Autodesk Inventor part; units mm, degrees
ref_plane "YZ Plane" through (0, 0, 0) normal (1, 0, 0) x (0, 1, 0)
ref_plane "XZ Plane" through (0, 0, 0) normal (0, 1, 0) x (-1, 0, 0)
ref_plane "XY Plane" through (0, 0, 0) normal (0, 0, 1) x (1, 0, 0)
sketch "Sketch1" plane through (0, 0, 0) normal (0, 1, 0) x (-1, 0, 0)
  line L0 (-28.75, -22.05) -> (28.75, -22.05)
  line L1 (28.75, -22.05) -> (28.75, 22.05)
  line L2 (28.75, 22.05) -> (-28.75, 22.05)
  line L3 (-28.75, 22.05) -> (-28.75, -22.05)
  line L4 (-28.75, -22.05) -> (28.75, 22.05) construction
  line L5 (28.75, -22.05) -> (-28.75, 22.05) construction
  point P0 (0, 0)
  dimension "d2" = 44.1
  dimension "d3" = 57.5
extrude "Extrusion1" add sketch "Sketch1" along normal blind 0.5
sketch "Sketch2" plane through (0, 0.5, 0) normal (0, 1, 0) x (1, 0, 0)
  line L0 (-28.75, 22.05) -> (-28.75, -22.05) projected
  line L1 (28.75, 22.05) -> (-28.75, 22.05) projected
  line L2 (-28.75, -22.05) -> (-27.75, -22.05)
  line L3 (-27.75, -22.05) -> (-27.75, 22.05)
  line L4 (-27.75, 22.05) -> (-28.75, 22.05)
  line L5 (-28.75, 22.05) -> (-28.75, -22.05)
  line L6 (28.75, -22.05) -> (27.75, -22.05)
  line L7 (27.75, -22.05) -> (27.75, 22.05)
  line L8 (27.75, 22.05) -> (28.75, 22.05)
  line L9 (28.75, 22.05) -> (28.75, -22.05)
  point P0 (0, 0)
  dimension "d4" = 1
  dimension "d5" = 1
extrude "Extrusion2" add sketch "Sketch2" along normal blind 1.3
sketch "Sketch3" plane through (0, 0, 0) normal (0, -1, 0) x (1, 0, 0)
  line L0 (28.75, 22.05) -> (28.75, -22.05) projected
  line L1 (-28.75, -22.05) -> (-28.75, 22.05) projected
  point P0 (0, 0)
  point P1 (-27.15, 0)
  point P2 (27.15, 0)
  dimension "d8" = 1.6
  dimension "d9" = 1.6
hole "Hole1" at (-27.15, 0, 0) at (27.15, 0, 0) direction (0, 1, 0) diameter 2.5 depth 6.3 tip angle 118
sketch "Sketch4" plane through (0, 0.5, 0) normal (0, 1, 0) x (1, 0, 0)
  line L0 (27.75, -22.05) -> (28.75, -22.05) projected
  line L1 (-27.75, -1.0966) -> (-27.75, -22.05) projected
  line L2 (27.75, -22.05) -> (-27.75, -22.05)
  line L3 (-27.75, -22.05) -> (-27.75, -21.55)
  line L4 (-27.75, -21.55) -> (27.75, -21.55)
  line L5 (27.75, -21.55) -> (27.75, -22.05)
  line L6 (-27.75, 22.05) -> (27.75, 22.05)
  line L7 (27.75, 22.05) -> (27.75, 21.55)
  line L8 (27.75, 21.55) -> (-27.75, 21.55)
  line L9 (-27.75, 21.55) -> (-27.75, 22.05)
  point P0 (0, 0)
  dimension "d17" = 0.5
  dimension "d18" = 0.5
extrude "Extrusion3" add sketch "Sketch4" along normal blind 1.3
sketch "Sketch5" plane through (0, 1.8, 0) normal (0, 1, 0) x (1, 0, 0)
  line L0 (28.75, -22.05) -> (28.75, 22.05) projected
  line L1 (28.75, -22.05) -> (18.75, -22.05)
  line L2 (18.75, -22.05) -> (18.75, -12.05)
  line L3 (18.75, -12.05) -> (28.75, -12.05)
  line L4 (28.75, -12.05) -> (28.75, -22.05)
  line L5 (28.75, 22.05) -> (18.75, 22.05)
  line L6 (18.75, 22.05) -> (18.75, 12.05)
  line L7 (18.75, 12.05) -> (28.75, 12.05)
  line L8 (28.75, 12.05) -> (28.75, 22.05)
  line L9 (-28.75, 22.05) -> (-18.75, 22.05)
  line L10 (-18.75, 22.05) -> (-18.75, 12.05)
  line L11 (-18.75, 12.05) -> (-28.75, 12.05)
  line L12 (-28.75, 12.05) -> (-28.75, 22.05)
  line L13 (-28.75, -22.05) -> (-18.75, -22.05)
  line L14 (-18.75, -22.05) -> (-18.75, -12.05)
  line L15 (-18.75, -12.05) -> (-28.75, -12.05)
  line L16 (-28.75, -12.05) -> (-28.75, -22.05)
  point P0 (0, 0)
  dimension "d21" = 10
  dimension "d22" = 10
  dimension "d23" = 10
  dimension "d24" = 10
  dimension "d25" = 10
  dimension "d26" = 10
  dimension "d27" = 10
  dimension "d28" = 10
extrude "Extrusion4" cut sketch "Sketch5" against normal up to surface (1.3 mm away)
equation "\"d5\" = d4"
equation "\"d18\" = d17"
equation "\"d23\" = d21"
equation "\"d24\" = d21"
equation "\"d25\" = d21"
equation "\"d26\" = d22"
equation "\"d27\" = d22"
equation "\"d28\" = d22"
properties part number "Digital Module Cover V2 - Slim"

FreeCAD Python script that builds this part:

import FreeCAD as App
import Part
import Sketcher

V = App.Vector
Q = App.Units.Quantity

doc = App.newDocument("Part")
body = doc.addObject("PartDesign::Body", "Body")

sketch1 = body.newObject("Sketcher::SketchObject", "Sketch")
sketch1.AttachmentSupport = (doc.getObject("XZ_Plane"), [""])
sketch1.MapMode = "FlatFace"
sketch1.addGeometry(Part.LineSegment(V(28.75, 22.05, 0), V(28.75, -22.05, 0)), False)
sketch1.addGeometry(Part.LineSegment(V(28.75, -22.05, 0), V(-28.75, -22.05, 0)), False)
sketch1.addGeometry(Part.LineSegment(V(-28.75, -22.05, 0), V(-28.75, 22.05, 0)), False)
sketch1.addGeometry(Part.LineSegment(V(-28.75, 22.05, 0), V(28.75, 22.05, 0)), False)
sketch1.addConstraint(Sketcher.Constraint("Coincident", 0, 2, 1, 1))
sketch1.addConstraint(Sketcher.Constraint("Coincident", 1, 2, 2, 1))
sketch1.addConstraint(Sketcher.Constraint("Coincident", 2, 2, 3, 1))
sketch1.addConstraint(Sketcher.Constraint("Coincident", 3, 2, 0, 1))
sketch1.addConstraint(Sketcher.Constraint("Vertical", 0))
sketch1.addConstraint(Sketcher.Constraint("Horizontal", 1))
sketch1.addConstraint(Sketcher.Constraint("Vertical", 2))
sketch1.addConstraint(Sketcher.Constraint("Horizontal", 3))
sketch1.addConstraint(Sketcher.Constraint("Symmetric", 0, 2, 2, 2, -1, 1))
sketch1.addConstraint(Sketcher.Constraint("DistanceX", 1, 2, 1, 1, Q("57.5 mm")))
sketch1.addConstraint(Sketcher.Constraint("DistanceY", 0, 2, 0, 1, Q("44.1 mm")))
pad1 = body.newObject("PartDesign::Pad", "Pad")
pad1.Profile = sketch1
pad1.Length = 0.5
pad1.Reversed = True

sketch2 = body.newObject("Sketcher::SketchObject", "Sketch001")
sketch2.AttachmentSupport = (doc.getObject("XZ_Plane"), [""])
sketch2.MapMode = "FlatFace"
sketch2.AttachmentOffset = App.Placement(V(0, 0, -0.5), App.Rotation())
sketch2.addGeometry(Part.LineSegment(V(-27.75, -22.05, 0), V(-28.75, -22.05, 0)), False)
sketch2.addGeometry(Part.LineSegment(V(-28.75, -22.05, 0), V(-28.75, 22.05, 0)), False)
sketch2.addGeometry(Part.LineSegment(V(-28.75, 22.05, 0), V(-27.75, 22.05, 0)), False)
sketch2.addGeometry(Part.LineSegment(V(-27.75, 22.05, 0), V(-27.75, -22.05, 0)), False)
sketch2.addGeometry(Part.LineSegment(V(28.75, -22.05, 0), V(27.75, -22.05, 0)), False)
sketch2.addGeometry(Part.LineSegment(V(27.75, -22.05, 0), V(27.75, 22.05, 0)), False)
sketch2.addGeometry(Part.LineSegment(V(27.75, 22.05, 0), V(28.75, 22.05, 0)), False)
sketch2.addGeometry(Part.LineSegment(V(28.75, 22.05, 0), V(28.75, -22.05, 0)), False)
sketch2.addConstraint(Sketcher.Constraint("Coincident", 0, 2, 1, 1))
sketch2.addConstraint(Sketcher.Constraint("Coincident", 1, 2, 2, 1))
sketch2.addConstraint(Sketcher.Constraint("Coincident", 2, 2, 3, 1))
sketch2.addConstraint(Sketcher.Constraint("Coincident", 3, 2, 0, 1))
sketch2.addConstraint(Sketcher.Constraint("Coincident", 4, 2, 5, 1))
sketch2.addConstraint(Sketcher.Constraint("Coincident", 5, 2, 6, 1))
sketch2.addConstraint(Sketcher.Constraint("Coincident", 6, 2, 7, 1))
sketch2.addConstraint(Sketcher.Constraint("Coincident", 7, 2, 4, 1))
sketch2.addConstraint(Sketcher.Constraint("Horizontal", 0))
sketch2.addConstraint(Sketcher.Constraint("Vertical", 1))
sketch2.addConstraint(Sketcher.Constraint("Horizontal", 2))
sketch2.addConstraint(Sketcher.Constraint("Vertical", 3))
sketch2.addConstraint(Sketcher.Constraint("Horizontal", 4))
sketch2.addConstraint(Sketcher.Constraint("Vertical", 5))
sketch2.addConstraint(Sketcher.Constraint("Horizontal", 6))
sketch2.addConstraint(Sketcher.Constraint("Vertical", 7))
sketch2.addConstraint(Sketcher.Constraint("Symmetric", 2, 2, 4, 2, -1, 1))
sketch2.addConstraint(Sketcher.Constraint("Symmetric", 0, 2, 6, 2, -1, 1))
sketch2.addConstraint(Sketcher.Constraint("Horizontal", 3, 2, 4, 2))
sketch2.addConstraint(Sketcher.Constraint("DistanceX", 0, 2, 0, 1, Q("1 mm")))
sketch2.addConstraint(Sketcher.Constraint("DistanceY", 1, 1, 1, 2, Q("44.1 mm")))
sketch2.addConstraint(Sketcher.Constraint("DistanceX", 3, 2, 4, 2, Q("55.5 mm")))
pad2 = body.newObject("PartDesign::Pad", "Pad001")
pad2.Profile = sketch2
pad2.Length = 1.3
pad2.Reversed = True

sketch3 = body.newObject("Sketcher::SketchObject", "Sketch002")
sketch3.AttachmentSupport = (doc.getObject("XZ_Plane"), [""])
sketch3.MapMode = "FlatFace"
sketch3.addGeometry(Part.Circle(V(-27.15, 0, 0), V(0, 0, 1), 1.25), False)
sketch3.addGeometry(Part.Circle(V(27.15, 0, 0), V(0, 0, 1), 1.25), False)
sketch3.addConstraint(Sketcher.Constraint("Equal", 0, 1))
sketch3.addConstraint(Sketcher.Constraint("Symmetric", 0, 3, 1, 3, -1, 1))
sketch3.addConstraint(Sketcher.Constraint("PointOnObject", 0, 3, -1))
sketch3.addConstraint(Sketcher.Constraint("Diameter", 0, Q("2.5 mm")))
sketch3.addConstraint(Sketcher.Constraint("DistanceX", 0, 3, 1, 3, Q("54.3 mm")))
doc.recompute()
hole = body.newObject("PartDesign::Hole", "Hole")
hole.Profile = sketch3
hole.ThreadType = "None"
hole.Diameter = 2.5
hole.DepthType = "Dimension"
hole.Depth = 6.3
hole.DrillPoint = "Angled"
hole.DrillPointAngle = 118

sketch4 = body.newObject("Sketcher::SketchObject", "Sketch003")
sketch4.AttachmentSupport = (doc.getObject("XZ_Plane"), [""])
sketch4.MapMode = "FlatFace"
sketch4.AttachmentOffset = App.Placement(V(0, 0, -0.5), App.Rotation())
sketch4.addGeometry(Part.LineSegment(V(27.75, 21.55, 0), V(-27.75, 21.55, 0)), False)
sketch4.addGeometry(Part.LineSegment(V(-27.75, 21.55, 0), V(-27.75, 22.05, 0)), False)
sketch4.addGeometry(Part.LineSegment(V(-27.75, 22.05, 0), V(27.75, 22.05, 0)), False)
sketch4.addGeometry(Part.LineSegment(V(27.75, 22.05, 0), V(27.75, 21.55, 0)), False)
sketch4.addGeometry(Part.LineSegment(V(27.75, -22.05, 0), V(-27.75, -22.05, 0)), False)
sketch4.addGeometry(Part.LineSegment(V(-27.75, -22.05, 0), V(-27.75, -21.55, 0)), False)
sketch4.addGeometry(Part.LineSegment(V(-27.75, -21.55, 0), V(27.75, -21.55, 0)), False)
sketch4.addGeometry(Part.LineSegment(V(27.75, -21.55, 0), V(27.75, -22.05, 0)), False)
sketch4.addConstraint(Sketcher.Constraint("Coincident", 0, 2, 1, 1))
sketch4.addConstraint(Sketcher.Constraint("Coincident", 1, 2, 2, 1))
sketch4.addConstraint(Sketcher.Constraint("Coincident", 2, 2, 3, 1))
sketch4.addConstraint(Sketcher.Constraint("Coincident", 3, 2, 0, 1))
sketch4.addConstraint(Sketcher.Constraint("Coincident", 4, 2, 5, 1))
sketch4.addConstraint(Sketcher.Constraint("Coincident", 5, 2, 6, 1))
sketch4.addConstraint(Sketcher.Constraint("Coincident", 6, 2, 7, 1))
sketch4.addConstraint(Sketcher.Constraint("Coincident", 7, 2, 4, 1))
sketch4.addConstraint(Sketcher.Constraint("Horizontal", 0))
sketch4.addConstraint(Sketcher.Constraint("Vertical", 1))
sketch4.addConstraint(Sketcher.Constraint("Horizontal", 2))
sketch4.addConstraint(Sketcher.Constraint("Vertical", 3))
sketch4.addConstraint(Sketcher.Constraint("Horizontal", 4))
sketch4.addConstraint(Sketcher.Constraint("Vertical", 5))
sketch4.addConstraint(Sketcher.Constraint("Horizontal", 6))
sketch4.addConstraint(Sketcher.Constraint("Vertical", 7))
sketch4.addConstraint(Sketcher.Constraint("Symmetric", 2, 2, 4, 2, -1, 1))
sketch4.addConstraint(Sketcher.Constraint("Symmetric", 0, 2, 6, 2, -1, 1))
sketch4.addConstraint(Sketcher.Constraint("Vertical", 1, 2, 4, 2))
sketch4.addConstraint(Sketcher.Constraint("DistanceY", 1, 1, 1, 2, Q("0.5 mm")))
sketch4.addConstraint(Sketcher.Constraint("DistanceX", 0, 2, 0, 1, Q("55.5 mm")))
sketch4.addConstraint(Sketcher.Constraint("DistanceY", 4, 2, 0, 2, Q("43.6 mm")))
pad3 = body.newObject("PartDesign::Pad", "Pad002")
pad3.Profile = sketch4
pad3.Length = 1.3
pad3.Reversed = True

sketch5 = body.newObject("Sketcher::SketchObject", "Sketch004")
sketch5.AttachmentSupport = (doc.getObject("XZ_Plane"), [""])
sketch5.MapMode = "FlatFace"
sketch5.AttachmentOffset = App.Placement(V(0, 0, -1.8), App.Rotation())
sketch5.addGeometry(Part.LineSegment(V(18.75, 22.05, 0), V(28.75, 22.05, 0)), False)
sketch5.addGeometry(Part.LineSegment(V(28.75, 22.05, 0), V(28.75, 12.05, 0)), False)
sketch5.addGeometry(Part.LineSegment(V(28.75, 12.05, 0), V(18.75, 12.05, 0)), False)
sketch5.addGeometry(Part.LineSegment(V(18.75, 12.05, 0), V(18.75, 22.05, 0)), False)
sketch5.addGeometry(Part.LineSegment(V(18.75, -12.05, 0), V(28.75, -12.05, 0)), False)
sketch5.addGeometry(Part.LineSegment(V(28.75, -12.05, 0), V(28.75, -22.05, 0)), False)
sketch5.addGeometry(Part.LineSegment(V(28.75, -22.05, 0), V(18.75, -22.05, 0)), False)
sketch5.addGeometry(Part.LineSegment(V(18.75, -22.05, 0), V(18.75, -12.05, 0)), False)
sketch5.addGeometry(Part.LineSegment(V(-18.75, -22.05, 0), V(-28.75, -22.05, 0)), False)
sketch5.addGeometry(Part.LineSegment(V(-28.75, -22.05, 0), V(-28.75, -12.05, 0)), False)
sketch5.addGeometry(Part.LineSegment(V(-28.75, -12.05, 0), V(-18.75, -12.05, 0)), False)
sketch5.addGeometry(Part.LineSegment(V(-18.75, -12.05, 0), V(-18.75, -22.05, 0)), False)
sketch5.addGeometry(Part.LineSegment(V(-28.75, 12.05, 0), V(-28.75, 22.05, 0)), False)
sketch5.addGeometry(Part.LineSegment(V(-28.75, 22.05, 0), V(-18.75, 22.05, 0)), False)
sketch5.addGeometry(Part.LineSegment(V(-18.75, 22.05, 0), V(-18.75, 12.05, 0)), False)
sketch5.addGeometry(Part.LineSegment(V(-18.75, 12.05, 0), V(-28.75, 12.05, 0)), False)
sketch5.addConstraint(Sketcher.Constraint("Coincident", 0, 2, 1, 1))
sketch5.addConstraint(Sketcher.Constraint("Coincident", 1, 2, 2, 1))
sketch5.addConstraint(Sketcher.Constraint("Coincident", 2, 2, 3, 1))
sketch5.addConstraint(Sketcher.Constraint("Coincident", 3, 2, 0, 1))
sketch5.addConstraint(Sketcher.Constraint("Coincident", 4, 2, 5, 1))
sketch5.addConstraint(Sketcher.Constraint("Coincident", 5, 2, 6, 1))
sketch5.addConstraint(Sketcher.Constraint("Coincident", 6, 2, 7, 1))
sketch5.addConstraint(Sketcher.Constraint("Coincident", 7, 2, 4, 1))
sketch5.addConstraint(Sketcher.Constraint("Coincident", 8, 2, 9, 1))
sketch5.addConstraint(Sketcher.Constraint("Coincident", 9, 2, 10, 1))
sketch5.addConstraint(Sketcher.Constraint("Coincident", 10, 2, 11, 1))
sketch5.addConstraint(Sketcher.Constraint("Coincident", 11, 2, 8, 1))
sketch5.addConstraint(Sketcher.Constraint("Coincident", 12, 2, 13, 1))
sketch5.addConstraint(Sketcher.Constraint("Coincident", 13, 2, 14, 1))
sketch5.addConstraint(Sketcher.Constraint("Coincident", 14, 2, 15, 1))
sketch5.addConstraint(Sketcher.Constraint("Coincident", 15, 2, 12, 1))
sketch5.addConstraint(Sketcher.Constraint("Horizontal", 0))
sketch5.addConstraint(Sketcher.Constraint("Vertical", 1))
sketch5.addConstraint(Sketcher.Constraint("Horizontal", 2))
sketch5.addConstraint(Sketcher.Constraint("Vertical", 3))
sketch5.addConstraint(Sketcher.Constraint("Horizontal", 4))
sketch5.addConstraint(Sketcher.Constraint("Vertical", 5))
sketch5.addConstraint(Sketcher.Constraint("Horizontal", 6))
sketch5.addConstraint(Sketcher.Constraint("Vertical", 7))
sketch5.addConstraint(Sketcher.Constraint("Horizontal", 8))
sketch5.addConstraint(Sketcher.Constraint("Vertical", 9))
sketch5.addConstraint(Sketcher.Constraint("Horizontal", 10))
sketch5.addConstraint(Sketcher.Constraint("Vertical", 11))
sketch5.addConstraint(Sketcher.Constraint("Vertical", 12))
sketch5.addConstraint(Sketcher.Constraint("Horizontal", 13))
sketch5.addConstraint(Sketcher.Constraint("Vertical", 14))
sketch5.addConstraint(Sketcher.Constraint("Horizontal", 15))
sketch5.addConstraint(Sketcher.Constraint("Symmetric", 0, 2, 8, 2, -1, 1))
sketch5.addConstraint(Sketcher.Constraint("Symmetric", 2, 2, 10, 2, -1, 1))
sketch5.addConstraint(Sketcher.Constraint("Symmetric", 5, 2, 12, 2, -1, 1))
sketch5.addConstraint(Sketcher.Constraint("Symmetric", 7, 2, 14, 2, -1, 1))
sketch5.addConstraint(Sketcher.Constraint("Symmetric", 5, 2, 8, 2, -2))
sketch5.addConstraint(Sketcher.Constraint("Symmetric", 7, 2, 10, 2, -2))
sketch5.addConstraint(Sketcher.Constraint("Equal", 15, 1))
sketch5.addConstraint(Sketcher.Constraint("DistanceX", 0, 1, 0, 2, Q("10 mm")))
sketch5.addConstraint(Sketcher.Constraint("DistanceY", 4, 2, 1, 2, Q("24.1 mm")))
sketch5.addConstraint(Sketcher.Constraint("DistanceX", 8, 2, 6, 2, Q("47.5 mm")))
pocket1 = body.newObject("PartDesign::Pocket", "Pocket")
pocket1.Profile = sketch5
pocket1.Length = 1.3
pocket1.Reversed = True

doc.recompute()
